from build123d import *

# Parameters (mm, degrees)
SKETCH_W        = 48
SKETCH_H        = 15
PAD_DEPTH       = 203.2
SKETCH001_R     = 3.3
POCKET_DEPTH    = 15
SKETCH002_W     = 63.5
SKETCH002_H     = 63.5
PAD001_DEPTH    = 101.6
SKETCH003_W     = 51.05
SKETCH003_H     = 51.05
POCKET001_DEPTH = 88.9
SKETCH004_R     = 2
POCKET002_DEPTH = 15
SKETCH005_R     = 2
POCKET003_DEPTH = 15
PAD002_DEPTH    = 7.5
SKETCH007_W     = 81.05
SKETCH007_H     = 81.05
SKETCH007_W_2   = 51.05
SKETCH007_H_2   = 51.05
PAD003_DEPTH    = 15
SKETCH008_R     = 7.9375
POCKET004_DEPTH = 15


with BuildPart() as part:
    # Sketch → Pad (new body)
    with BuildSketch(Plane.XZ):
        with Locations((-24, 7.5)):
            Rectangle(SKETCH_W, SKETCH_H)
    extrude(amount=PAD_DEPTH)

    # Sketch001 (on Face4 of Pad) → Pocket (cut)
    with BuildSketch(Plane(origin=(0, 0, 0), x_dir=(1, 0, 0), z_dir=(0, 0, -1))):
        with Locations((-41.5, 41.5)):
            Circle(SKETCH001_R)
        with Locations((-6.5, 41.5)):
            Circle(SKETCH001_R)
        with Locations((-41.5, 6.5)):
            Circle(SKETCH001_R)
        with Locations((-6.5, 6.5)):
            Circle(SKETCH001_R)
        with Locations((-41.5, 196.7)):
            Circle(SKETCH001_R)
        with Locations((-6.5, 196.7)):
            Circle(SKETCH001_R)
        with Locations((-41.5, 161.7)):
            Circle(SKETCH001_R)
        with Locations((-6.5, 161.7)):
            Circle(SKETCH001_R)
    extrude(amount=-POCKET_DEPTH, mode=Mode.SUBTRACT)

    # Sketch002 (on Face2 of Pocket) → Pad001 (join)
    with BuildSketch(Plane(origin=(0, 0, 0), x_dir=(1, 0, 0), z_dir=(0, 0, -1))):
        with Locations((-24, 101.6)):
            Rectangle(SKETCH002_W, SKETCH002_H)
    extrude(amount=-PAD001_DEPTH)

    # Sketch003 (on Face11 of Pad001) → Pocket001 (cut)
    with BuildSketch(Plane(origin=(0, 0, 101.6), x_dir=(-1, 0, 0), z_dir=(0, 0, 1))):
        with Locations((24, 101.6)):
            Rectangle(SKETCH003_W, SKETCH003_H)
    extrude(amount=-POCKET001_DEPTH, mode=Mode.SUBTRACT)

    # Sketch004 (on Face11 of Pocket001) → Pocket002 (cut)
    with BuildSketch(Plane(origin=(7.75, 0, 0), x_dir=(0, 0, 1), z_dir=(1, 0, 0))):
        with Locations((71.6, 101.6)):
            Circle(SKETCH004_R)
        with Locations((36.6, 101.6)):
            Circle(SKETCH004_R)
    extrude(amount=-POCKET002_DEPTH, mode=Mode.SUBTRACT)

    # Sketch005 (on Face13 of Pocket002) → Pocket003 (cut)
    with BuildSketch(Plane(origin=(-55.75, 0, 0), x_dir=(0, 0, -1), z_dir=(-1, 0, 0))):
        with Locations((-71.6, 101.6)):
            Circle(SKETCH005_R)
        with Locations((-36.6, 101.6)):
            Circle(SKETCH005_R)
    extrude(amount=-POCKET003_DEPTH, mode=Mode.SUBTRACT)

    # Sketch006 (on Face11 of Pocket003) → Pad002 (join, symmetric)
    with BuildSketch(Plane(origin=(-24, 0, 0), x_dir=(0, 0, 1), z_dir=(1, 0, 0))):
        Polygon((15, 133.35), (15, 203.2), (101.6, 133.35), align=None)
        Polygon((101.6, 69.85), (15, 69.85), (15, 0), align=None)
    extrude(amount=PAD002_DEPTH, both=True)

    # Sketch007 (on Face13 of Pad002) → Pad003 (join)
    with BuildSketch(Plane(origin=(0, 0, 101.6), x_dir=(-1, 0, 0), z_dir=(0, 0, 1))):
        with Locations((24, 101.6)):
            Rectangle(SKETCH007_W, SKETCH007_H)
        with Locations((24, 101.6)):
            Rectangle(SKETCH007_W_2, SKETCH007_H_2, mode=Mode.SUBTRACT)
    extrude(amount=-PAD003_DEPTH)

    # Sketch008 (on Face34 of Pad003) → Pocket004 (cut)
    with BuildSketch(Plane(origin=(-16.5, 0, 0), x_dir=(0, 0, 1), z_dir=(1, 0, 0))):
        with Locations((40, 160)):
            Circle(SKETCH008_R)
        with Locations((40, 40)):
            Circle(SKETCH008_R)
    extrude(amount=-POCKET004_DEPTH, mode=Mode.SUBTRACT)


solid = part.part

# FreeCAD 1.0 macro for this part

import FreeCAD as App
import Part
import Sketcher


def add_polygon(sketch, points):
    """Adds a closed chain of lines whose ends are joined by coincident constraints."""
    first, n = sketch.GeometryCount, len(points)
    for a, b in zip(points, points[1:] + points[:1]):
        sketch.addGeometry(Part.LineSegment(App.Vector(*a, 0), App.Vector(*b, 0)), False)
    for i in range(n):
        sketch.addConstraint(Sketcher.Constraint("Coincident", first + i, 2, first + (i + 1) % n, 1))

doc = App.newDocument("Part")
body = doc.addObject("PartDesign::Body", "Body")

# Sketch on XZ plane
sketch1 = body.newObject("Sketcher::SketchObject", "Sketch")
sketch1.AttachmentSupport = (doc.getObject("XZ_Plane"), [""])
sketch1.MapMode = "FlatFace"
add_polygon(sketch1, [(-48, 15), (-48, 0), (0, 0), (0, 15)])  # lines 0-3
sketch1.addConstraint([
    Sketcher.Constraint("Vertical", 0),
    Sketcher.Constraint("Horizontal", 1),
    Sketcher.Constraint("Vertical", 2),
    Sketcher.Constraint("Horizontal", 3),
    Sketcher.Constraint("Coincident", 1, 2, -1, 1),
    Sketcher.Constraint("DistanceX", 1, 1, 1, 2, 48.0),
    Sketcher.Constraint("DistanceY", 0, 2, 0, 1, 15.0),
])
pad1 = body.newObject("PartDesign::Pad", "Pad")
pad1.Profile = sketch1
pad1.Length = 203.2

# Sketch on XY plane
sketch2 = body.newObject("Sketcher::SketchObject", "Sketch001")
sketch2.AttachmentSupport = (doc.getObject("XY_Plane"), [""])
sketch2.MapMode = "FlatFace"
sketch2.addGeometry([
    Part.Circle(App.Vector(-41.5, -41.5, 0), App.Vector(0, 0, 1), 3.3),  # 0
    Part.Circle(App.Vector(-6.5, -41.5, 0), App.Vector(0, 0, 1), 3.3),  # 1
    Part.Circle(App.Vector(-41.5, -6.5, 0), App.Vector(0, 0, 1), 3.3),  # 2
    Part.Circle(App.Vector(-6.5, -6.5, 0), App.Vector(0, 0, 1), 3.3),  # 3
    Part.Circle(App.Vector(-41.5, -196.7, 0), App.Vector(0, 0, 1), 3.3),  # 4
    Part.Circle(App.Vector(-6.5, -196.7, 0), App.Vector(0, 0, 1), 3.3),  # 5
    Part.Circle(App.Vector(-41.5, -161.7, 0), App.Vector(0, 0, 1), 3.3),  # 6
    Part.Circle(App.Vector(-6.5, -161.7, 0), App.Vector(0, 0, 1), 3.3),  # 7
], False)
sketch2.addConstraint([
    Sketcher.Constraint("Equal", 0, 1),
    Sketcher.Constraint("Equal", 1, 2),
    Sketcher.Constraint("Equal", 2, 3),
    Sketcher.Constraint("Equal", 3, 4),
    Sketcher.Constraint("Equal", 4, 5),
    Sketcher.Constraint("Equal", 5, 6),
    Sketcher.Constraint("Equal", 6, 7),
    Sketcher.Constraint("Horizontal", 0, 3, 1, 3),
    Sketcher.Constraint("Horizontal", 2, 3, 3, 3),
    Sketcher.Constraint("Horizontal", 4, 3, 5, 3),
    Sketcher.Constraint("Horizontal", 6, 3, 7, 3),
    Sketcher.Constraint("Vertical", 0, 3, 2, 3),
    Sketcher.Constraint("Vertical", 1, 3, 3, 3),
    Sketcher.Constraint("Vertical", 2, 3, 4, 3),
    Sketcher.Constraint("Vertical", 3, 3, 5, 3),
    Sketcher.Constraint("Vertical", 4, 3, 6, 3),
    Sketcher.Constraint("Vertical", 5, 3, 7, 3),
    Sketcher.Constraint("Diameter", 0, 6.6),
    Sketcher.Constraint("DistanceX", 0, 3, 1, 3, 35.0),
    Sketcher.Constraint("DistanceY", 0, 3, 2, 3, 35.0),
    Sketcher.Constraint("DistanceY", 4, 3, 6, 3, 35.0),
    Sketcher.Constraint("DistanceX", 0, 3, -1, 1, 41.5),
    Sketcher.Constraint("DistanceY", 0, 3, -1, 1, 41.5),
    Sketcher.Constraint("DistanceY", 4, 3, -1, 1, 196.7),
])
pocket1 = body.newObject("PartDesign::Pocket", "Pocket")
pocket1.Profile = sketch2
pocket1.Length = 15
pocket1.Reversed = True

# Sketch on XY plane
sketch3 = body.newObject("Sketcher::SketchObject", "Sketch002")
sketch3.AttachmentSupport = (doc.getObject("XY_Plane"), [""])
sketch3.MapMode = "FlatFace"
add_polygon(sketch3, [(-56, -133), (-56, -70), (8, -70), (8, -133)])  # lines 0-3
sketch3.addConstraint([
    Sketcher.Constraint("Vertical", 0),
    Sketcher.Constraint("Horizontal", 1),
    Sketcher.Constraint("Vertical", 2),
    Sketcher.Constraint("Horizontal", 3),
    Sketcher.Constraint("Equal", 3, 0),
    Sketcher.Constraint("DistanceX", 1, 1, 1, 2, 63.5),
    Sketcher.Constraint("DistanceX", 0, 2, -1, 1, 55.75),
    Sketcher.Constraint("DistanceY", 0, 2, -1, 1, 69.85),
])
pad2 = body.newObject("PartDesign::Pad", "Pad001")
pad2.Profile = sketch3
pad2.Length = 101.6

# Sketch on XY plane
sketch4 = body.newObject("Sketcher::SketchObject", "Sketch003")
sketch4.AttachmentSupport = (doc.getObject("XY_Plane"), [""])
sketch4.MapMode = "FlatFace"
sketch4.AttachmentOffset = App.Placement(App.Vector(0, 0, 101.6), App.Rotation())
add_polygon(sketch4, [(2, -127), (2, -76), (-50, -76), (-50, -127)])  # lines 0-3
sketch4.addConstraint([
    Sketcher.Constraint("Vertical", 0),
    Sketcher.Constraint("Horizontal", 1),
    Sketcher.Constraint("Vertical", 2),
    Sketcher.Constraint("Horizontal", 3),
    Sketcher.Constraint("Equal", 3, 0),
    Sketcher.Constraint("DistanceX", 1, 2, 1, 1, 51.05),
    Sketcher.Constraint("DistanceX", -1, 1, 0, 2, 1.525),
    Sketcher.Constraint("DistanceY", 0, 2, -1, 1, 76.075),
])
pocket2 = body.newObject("PartDesign::Pocket", "Pocket001")
pocket2.Profile = sketch4
pocket2.Length = 88.9

# Sketch on YZ plane
sketch5 = body.newObject("Sketcher::SketchObject", "Sketch004")
sketch5.AttachmentSupport = (doc.getObject("YZ_Plane"), [""])
sketch5.MapMode = "FlatFace"
sketch5.AttachmentOffset = App.Placement(App.Vector(0, 0, 7.75), App.Rotation())
sketch5.addGeometry([
    Part.Circle(App.Vector(-101.6, 71.6, 0), App.Vector(0, 0, 1), 2),
    Part.Circle(App.Vector(-101.6, 36.6, 0), App.Vector(0, 0, 1), 2),
], False)
sketch5.addConstraint([
    Sketcher.Constraint("Equal", 0, 1),
    Sketcher.Constraint("Vertical", 0, 3, 1, 3),
    Sketcher.Constraint("Diameter", 0, 4.0),
    Sketcher.Constraint("DistanceY", 1, 3, 0, 3, 35.0),
    Sketcher.Constraint("DistanceX", 0, 3, -1, 1, 101.6),
    Sketcher.Constraint("DistanceY", -1, 1, 0, 3, 71.6),
])
pocket3 = body.newObject("PartDesign::Pocket", "Pocket002")
pocket3.Profile = sketch5
pocket3.Length = 15

# Sketch on YZ plane
sketch6 = body.newObject("Sketcher::SketchObject", "Sketch005")
sketch6.AttachmentSupport = (doc.getObject("YZ_Plane"), [""])
sketch6.MapMode = "FlatFace"
sketch6.AttachmentOffset = App.Placement(App.Vector(0, 0, -55.75), App.Rotation())
sketch6.addGeometry([
    Part.Circle(App.Vector(-101.6, 71.6, 0), App.Vector(0, 0, 1), 2),
    Part.Circle(App.Vector(-101.6, 36.6, 0), App.Vector(0, 0, 1), 2),
], False)
sketch6.addConstraint([
    Sketcher.Constraint("Equal", 0, 1),
    Sketcher.Constraint("Vertical", 0, 3, 1, 3),
    Sketcher.Constraint("Diameter", 0, 4.0),
    Sketcher.Constraint("DistanceY", 1, 3, 0, 3, 35.0),
    Sketcher.Constraint("DistanceX", 0, 3, -1, 1, 101.6),
    Sketcher.Constraint("DistanceY", -1, 1, 0, 3, 71.6),
])
pocket4 = body.newObject("PartDesign::Pocket", "Pocket003")
pocket4.Profile = sketch6
pocket4.Length = 15
pocket4.Reversed = True

# Sketch on YZ plane
sketch7 = body.newObject("Sketcher::SketchObject", "Sketch006")
sketch7.AttachmentSupport = (doc.getObject("YZ_Plane"), [""])
sketch7.MapMode = "FlatFace"
sketch7.AttachmentOffset = App.Placement(App.Vector(0, 0, -24), App.Rotation())
add_polygon(sketch7, [(-203, 15), (-133, 15), (-133, 102)])  # lines 0-2
add_polygon(sketch7, [(-70, 102), (-70, 15), (0, 15)])  # lines 3-5
sketch7.addConstraint([
    Sketcher.Constraint("Horizontal", 0),
    Sketcher.Constraint("Vertical", 1),
    Sketcher.Constraint("Vertical", 3),
    Sketcher.Constraint("Horizontal", 4),
    Sketcher.Constraint("PointOnObject", 4, 2, -2),
    Sketcher.Constraint("Horizontal", 2, 2, 3, 2),
    Sketcher.Constraint("Horizontal", 1, 2, 5, 2),
    Sketcher.Constraint("Equal", 0, 4),
    Sketcher.Constraint("DistanceY", 1, 1, 1, 2, 86.6),
    Sketcher.Constraint("DistanceY", -1, 1, 0, 2, 15.0),
    Sketcher.Constraint("DistanceX", 0, 1, 0, 2, 69.85),
    Sketcher.Constraint("DistanceX", 2, 2, -1, 1, 203.2),
])
pad3 = body.newObject("PartDesign::Pad", "Pad002")
pad3.Profile = sketch7
pad3.Length = 15
pad3.Midplane = True

# Sketch on XY plane
sketch8 = body.newObject("Sketcher::SketchObject", "Sketch007")
sketch8.AttachmentSupport = (doc.getObject("XY_Plane"), [""])
sketch8.MapMode = "FlatFace"
sketch8.AttachmentOffset = App.Placement(App.Vector(0, 0, 101.6), App.Rotation())
add_polygon(sketch8, [(17, -142), (17, -61), (-65, -61), (-65, -142)])  # lines 0-3
add_polygon(sketch8, [(-50, -76), (2, -76), (2, -127), (-50, -127)])  # lines 4-7
sketch8.addConstraint([
    Sketcher.Constraint("Vertical", 0),
    Sketcher.Constraint("Horizontal", 1),
    Sketcher.Constraint("Vertical", 2),
    Sketcher.Constraint("Horizontal", 3),
    Sketcher.Constraint("Horizontal", 4),
    Sketcher.Constraint("Vertical", 5),
    Sketcher.Constraint("Horizontal", 6),
    Sketcher.Constraint("Vertical", 7),
    Sketcher.Constraint("Equal", 3, 0),
    Sketcher.Constraint("Equal", 6, 5),
    Sketcher.Constraint("DistanceX", 4, 2, 0, 2, 15.0),
    Sketcher.Constraint("DistanceY", 4, 2, 0, 2, 15.0),
    Sketcher.Constraint("DistanceY", 3, 2, 5, 2, 15.0),
    Sketcher.Constraint("DistanceX", 1, 2, 1, 1, 81.05),
    Sketcher.Constraint("DistanceX", -1, 1, 0, 2, 16.525),
    Sketcher.Constraint("DistanceY", 0, 2, -1, 1, 61.075),
])
pad4 = body.newObject("PartDesign::Pad", "Pad003")
pad4.Profile = sketch8
pad4.Length = 15
pad4.Reversed = True

# Sketch on YZ plane
sketch9 = body.newObject("Sketcher::SketchObject", "Sketch008")
sketch9.AttachmentSupport = (doc.getObject("YZ_Plane"), [""])
sketch9.MapMode = "FlatFace"
sketch9.AttachmentOffset = App.Placement(App.Vector(0, 0, -16.5), App.Rotation())
sketch9.addGeometry([
    Part.Circle(App.Vector(-160, 40, 0), App.Vector(0, 0, 1), 8),
    Part.Circle(App.Vector(-40, 40, 0), App.Vector(0, 0, 1), 8),
], False)
sketch9.addConstraint([
    Sketcher.Constraint("Equal", 0, 1),
    Sketcher.Constraint("Horizontal", 0, 3, 1, 3),
    Sketcher.Constraint("Diameter", 0, 15.875),
    Sketcher.Constraint("DistanceX", 0, 3, -1, 1, 160.0),
    Sketcher.Constraint("DistanceY", -1, 1, 0, 3, 40.0),
    Sketcher.Constraint("DistanceX", 1, 3, -1, 1, 40.0),
])
pocket5 = body.newObject("PartDesign::Pocket", "Pocket004")
pocket5.Profile = sketch9
pocket5.Length = 15

doc.recompute()
